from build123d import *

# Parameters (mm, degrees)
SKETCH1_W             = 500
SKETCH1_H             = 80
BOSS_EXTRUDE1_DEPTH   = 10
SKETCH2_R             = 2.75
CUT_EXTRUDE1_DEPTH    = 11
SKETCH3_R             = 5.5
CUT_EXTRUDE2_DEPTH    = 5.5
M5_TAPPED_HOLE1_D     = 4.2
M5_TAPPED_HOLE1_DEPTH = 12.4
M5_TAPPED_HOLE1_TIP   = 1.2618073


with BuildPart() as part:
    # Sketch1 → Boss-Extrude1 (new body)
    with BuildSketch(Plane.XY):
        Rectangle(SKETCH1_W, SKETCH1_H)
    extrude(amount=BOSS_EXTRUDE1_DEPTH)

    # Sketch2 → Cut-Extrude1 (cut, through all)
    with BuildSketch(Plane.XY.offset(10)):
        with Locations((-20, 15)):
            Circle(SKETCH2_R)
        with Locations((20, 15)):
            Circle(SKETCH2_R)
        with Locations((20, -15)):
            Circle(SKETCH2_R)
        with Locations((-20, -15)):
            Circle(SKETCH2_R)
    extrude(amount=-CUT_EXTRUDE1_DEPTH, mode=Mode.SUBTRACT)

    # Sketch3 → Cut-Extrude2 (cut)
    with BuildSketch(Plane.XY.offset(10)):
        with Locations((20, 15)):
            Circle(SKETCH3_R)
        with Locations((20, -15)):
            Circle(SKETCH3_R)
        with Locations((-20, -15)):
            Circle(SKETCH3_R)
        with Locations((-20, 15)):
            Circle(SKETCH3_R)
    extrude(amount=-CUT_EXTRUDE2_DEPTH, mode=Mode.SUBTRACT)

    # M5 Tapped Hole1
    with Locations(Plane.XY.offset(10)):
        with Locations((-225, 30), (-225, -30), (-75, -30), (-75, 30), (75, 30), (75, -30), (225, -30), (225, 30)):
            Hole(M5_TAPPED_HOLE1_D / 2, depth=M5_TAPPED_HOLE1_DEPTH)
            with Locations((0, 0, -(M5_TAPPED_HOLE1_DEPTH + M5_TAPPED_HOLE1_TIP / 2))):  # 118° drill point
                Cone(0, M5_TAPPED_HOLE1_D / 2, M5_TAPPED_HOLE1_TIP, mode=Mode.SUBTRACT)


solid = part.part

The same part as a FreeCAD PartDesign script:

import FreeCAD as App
import Part
import Sketcher

V = App.Vector


def add_polygon(sketch, points):
    """Adds a closed chain of lines whose ends are joined by coincident constraints."""
    first, n = sketch.GeometryCount, len(points)
    for a, b in zip(points, points[1:] + points[:1]):
        sketch.addGeometry(Part.LineSegment(App.Vector(*a, 0), App.Vector(*b, 0)), False)
    for i in range(n):
        sketch.addConstraint(Sketcher.Constraint("Coincident", first + i, 2, first + (i + 1) % n, 1))

doc = App.newDocument("Part")
body = doc.addObject("PartDesign::Body", "Body")

# Sketch on XY plane
sketch1 = body.newObject("Sketcher::SketchObject", "Sketch")
sketch1.AttachmentSupport = (doc.getObject("XY_Plane"), [""])
sketch1.MapMode = "FlatFace"
add_polygon(sketch1, [(-250, 40), (-250, -40), (250, -40), (250, 40)])  # lines 0-3
sketch1.addConstraint([
    Sketcher.Constraint("Vertical", 0),
    Sketcher.Constraint("Horizontal", 1),
    Sketcher.Constraint("Vertical", 2),
    Sketcher.Constraint("Horizontal", 3),
    Sketcher.Constraint("Symmetric", 0, 2, 2, 2, -1, 1),
    Sketcher.Constraint("DistanceX", 1, 1, 1, 2, 500.0),
    Sketcher.Constraint("DistanceY", 0, 2, 0, 1, 80.0),
])
pad1 = body.newObject("PartDesign::Pad", "Pad")
pad1.Profile = sketch1
pad1.Length = 10

# Sketch on XY plane
sketch2 = body.newObject("Sketcher::SketchObject", "Sketch001")
sketch2.AttachmentSupport = (doc.getObject("XY_Plane"), [""])
sketch2.MapMode = "FlatFace"
sketch2.AttachmentOffset = App.Placement(V(0, 0, 10), App.Rotation())
sketch2.addGeometry([
    Part.Circle(V(-20, 15, 0), V(0, 0, 1), 2.8),
    Part.Circle(V(20, 15, 0), V(0, 0, 1), 2.8),
    Part.Circle(V(20, -15, 0), V(0, 0, 1), 2.8),
    Part.Circle(V(-20, -15, 0), V(0, 0, 1), 2.8),
], False)
sketch2.addConstraint([
    Sketcher.Constraint("Equal", 0, 1),
    Sketcher.Constraint("Equal", 1, 2),
    Sketcher.Constraint("Equal", 2, 3),
    Sketcher.Constraint("Symmetric", 0, 3, 2, 3, -1, 1),
    Sketcher.Constraint("Symmetric", 1, 3, 3, 3, -1, 1),
    Sketcher.Constraint("Symmetric", 0, 3, 1, 3, -2),
    Sketcher.Constraint("Diameter", 0, 5.5),
    Sketcher.Constraint("DistanceX", 0, 3, -1, 1, 20.0),
    Sketcher.Constraint("DistanceY", -1, 1, 0, 3, 15.0),
])
pocket1 = body.newObject("PartDesign::Pocket", "Pocket")
pocket1.Profile = sketch2
pocket1.Type = "ThroughAll"

# Sketch on XY plane
sketch3 = body.newObject("Sketcher::SketchObject", "Sketch002")
sketch3.AttachmentSupport = (doc.getObject("XY_Plane"), [""])
sketch3.MapMode = "FlatFace"
sketch3.AttachmentOffset = App.Placement(V(0, 0, 10), App.Rotation())
sketch3.addGeometry([
    Part.Circle(V(20, 15, 0), V(0, 0, 1), 6),
    Part.Circle(V(20, -15, 0), V(0, 0, 1), 6),
    Part.Circle(V(-20, -15, 0), V(0, 0, 1), 6),
    Part.Circle(V(-20, 15, 0), V(0, 0, 1), 6),
], False)
sketch3.addConstraint([
    Sketcher.Constraint("Equal", 0, 1),
    Sketcher.Constraint("Equal", 1, 2),
    Sketcher.Constraint("Equal", 2, 3),
    Sketcher.Constraint("Symmetric", 0, 3, 2, 3, -1, 1),
    Sketcher.Constraint("Symmetric", 1, 3, 3, 3, -1, 1),
    Sketcher.Constraint("Symmetric", 1, 3, 2, 3, -2),
    Sketcher.Constraint("Diameter", 0, 11.0),
    Sketcher.Constraint("DistanceX", -1, 1, 0, 3, 20.0),
    Sketcher.Constraint("DistanceY", -1, 1, 0, 3, 15.0),
])
pocket2 = body.newObject("PartDesign::Pocket", "Pocket001")
pocket2.Profile = sketch3
pocket2.Length = 5.5

# Sketch on XY plane
sketch4 = body.newObject("Sketcher::SketchObject", "Sketch003")
sketch4.AttachmentSupport = (doc.getObject("XY_Plane"), [""])
sketch4.MapMode = "FlatFace"
sketch4.AttachmentOffset = App.Placement(V(0, 0, 10), App.Rotation())
sketch4.addGeometry([
    Part.Circle(V(-225, 30, 0), V(0, 0, 1), 2.1),  # 0
    Part.Circle(V(-225, -30, 0), V(0, 0, 1), 2.1),  # 1
    Part.Circle(V(-75, -30, 0), V(0, 0, 1), 2.1),  # 2
    Part.Circle(V(-75, 30, 0), V(0, 0, 1), 2.1),  # 3
    Part.Circle(V(75, 30, 0), V(0, 0, 1), 2.1),  # 4
    Part.Circle(V(75, -30, 0), V(0, 0, 1), 2.1),  # 5
    Part.Circle(V(225, -30, 0), V(0, 0, 1), 2.1),  # 6
    Part.Circle(V(225, 30, 0), V(0, 0, 1), 2.1),  # 7
], False)
sketch4.addConstraint([
    Sketcher.Constraint("Equal", 0, 1),
    Sketcher.Constraint("Equal", 1, 2),
    Sketcher.Constraint("Equal", 2, 3),
    Sketcher.Constraint("Equal", 3, 4),
    Sketcher.Constraint("Equal", 4, 5),
    Sketcher.Constraint("Equal", 5, 6),
    Sketcher.Constraint("Equal", 6, 7),
    Sketcher.Constraint("Symmetric", 2, 3, 4, 3, -1, 1),
    Sketcher.Constraint("Symmetric", 3, 3, 5, 3, -1, 1),
    Sketcher.Constraint("Symmetric", 0, 3, 6, 3, -1, 1),
    Sketcher.Constraint("Symmetric", 1, 3, 7, 3, -1, 1),
    Sketcher.Constraint("Symmetric", 3, 3, 4, 3, -2),
    Sketcher.Constraint("Symmetric", 1, 3, 6, 3, -2),
    Sketcher.Constraint("Horizontal", 1, 3, 2, 3),
    Sketcher.Constraint("Diameter", 0, 4.2),
    Sketcher.Constraint("DistanceX", 0, 3, -1, 1, 225.0),
    Sketcher.Constraint("DistanceY", -1, 1, 0, 3, 30.0),
    Sketcher.Constraint("DistanceX", 2, 3, -1, 1, 75.0),
])
doc.recompute()
hole = body.newObject("PartDesign::Hole", "Hole")
hole.Profile = sketch4
hole.ThreadType = "None"
hole.Diameter = 4.2
hole.DepthType = "Dimension"
hole.Depth = 12.4
hole.DrillPoint = "Angled"
hole.DrillPointAngle = 118

doc.recompute()
